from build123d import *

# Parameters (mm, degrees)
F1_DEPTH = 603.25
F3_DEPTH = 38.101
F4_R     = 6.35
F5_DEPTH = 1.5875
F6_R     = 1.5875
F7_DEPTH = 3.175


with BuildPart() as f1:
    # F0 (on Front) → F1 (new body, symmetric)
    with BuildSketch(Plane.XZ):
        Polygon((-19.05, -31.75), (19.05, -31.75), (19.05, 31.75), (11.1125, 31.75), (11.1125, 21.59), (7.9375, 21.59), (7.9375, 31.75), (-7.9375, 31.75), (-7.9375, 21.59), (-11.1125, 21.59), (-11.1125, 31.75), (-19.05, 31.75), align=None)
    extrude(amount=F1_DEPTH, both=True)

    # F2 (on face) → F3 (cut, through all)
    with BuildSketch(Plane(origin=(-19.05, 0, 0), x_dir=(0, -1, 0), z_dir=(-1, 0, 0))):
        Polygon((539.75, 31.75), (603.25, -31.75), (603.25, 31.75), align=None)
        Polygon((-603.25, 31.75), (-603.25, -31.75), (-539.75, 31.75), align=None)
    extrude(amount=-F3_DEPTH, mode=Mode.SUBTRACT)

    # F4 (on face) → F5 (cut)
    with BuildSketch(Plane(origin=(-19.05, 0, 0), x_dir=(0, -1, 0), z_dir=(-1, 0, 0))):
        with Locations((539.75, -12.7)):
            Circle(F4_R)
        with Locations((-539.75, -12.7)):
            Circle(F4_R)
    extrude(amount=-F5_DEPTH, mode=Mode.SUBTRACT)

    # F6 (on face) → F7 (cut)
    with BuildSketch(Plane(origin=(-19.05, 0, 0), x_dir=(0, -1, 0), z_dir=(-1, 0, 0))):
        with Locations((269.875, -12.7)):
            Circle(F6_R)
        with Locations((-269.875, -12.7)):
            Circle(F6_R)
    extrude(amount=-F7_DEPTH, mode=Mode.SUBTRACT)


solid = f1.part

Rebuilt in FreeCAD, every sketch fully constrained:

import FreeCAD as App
import Part
import Sketcher

V = App.Vector
Q = App.Units.Quantity

doc = App.newDocument("Part")
body = doc.addObject("PartDesign::Body", "Body")

# Sketch on XZ plane
sketch1 = body.newObject("Sketcher::SketchObject", "Sketch")
sketch1.AttachmentSupport = (doc.getObject("XZ_Plane"), [""])
sketch1.MapMode = "FlatFace"
sketch1.addGeometry([
    Part.LineSegment(V(-19.1, -31.8, 0), V(19.1, -31.8, 0)),  # 0
    Part.LineSegment(V(19.1, -31.8, 0), V(19.1, 31.8, 0)),  # 1
    Part.LineSegment(V(19.1, 31.8, 0), V(11.1, 31.8, 0)),  # 2
    Part.LineSegment(V(11.1, 31.8, 0), V(11.1, 21.6, 0)),  # 3
    Part.LineSegment(V(11.1, 21.6, 0), V(7.9, 21.6, 0)),  # 4
    Part.LineSegment(V(7.9, 21.6, 0), V(7.9, 31.8, 0)),  # 5
    Part.LineSegment(V(7.9, 31.8, 0), V(-7.9, 31.8, 0)),  # 6
    Part.LineSegment(V(-7.9, 31.8, 0), V(-7.9, 21.6, 0)),  # 7
    Part.LineSegment(V(-7.9, 21.6, 0), V(-11.1, 21.6, 0)),  # 8
    Part.LineSegment(V(-11.1, 21.6, 0), V(-11.1, 31.8, 0)),  # 9
    Part.LineSegment(V(-11.1, 31.8, 0), V(-19.1, 31.8, 0)),  # 10
    Part.LineSegment(V(-19.1, 31.8, 0), V(-19.1, -31.8, 0)),  # 11
], False)
sketch1.addConstraint([
    Sketcher.Constraint("Coincident", 0, 2, 1, 1),
    Sketcher.Constraint("Coincident", 1, 2, 2, 1),
    Sketcher.Constraint("Coincident", 2, 2, 3, 1),
    Sketcher.Constraint("Coincident", 3, 2, 4, 1),
    Sketcher.Constraint("Coincident", 4, 2, 5, 1),
    Sketcher.Constraint("Coincident", 5, 2, 6, 1),
    Sketcher.Constraint("Coincident", 6, 2, 7, 1),
    Sketcher.Constraint("Coincident", 7, 2, 8, 1),
    Sketcher.Constraint("Coincident", 8, 2, 9, 1),
    Sketcher.Constraint("Coincident", 9, 2, 10, 1),
    Sketcher.Constraint("Coincident", 10, 2, 11, 1),
    Sketcher.Constraint("Coincident", 11, 2, 0, 1),
    Sketcher.Constraint("Horizontal", 0),
    Sketcher.Constraint("Vertical", 1),
    Sketcher.Constraint("Horizontal", 2),
    Sketcher.Constraint("Vertical", 3),
    Sketcher.Constraint("Horizontal", 4),
    Sketcher.Constraint("Vertical", 5),
    Sketcher.Constraint("Horizontal", 6),
    Sketcher.Constraint("Vertical", 7),
    Sketcher.Constraint("Horizontal", 8),
    Sketcher.Constraint("Vertical", 9),
    Sketcher.Constraint("Horizontal", 10),
    Sketcher.Constraint("Vertical", 11),
    Sketcher.Constraint("Symmetric", 0, 2, 10, 2, -1, 1),
    Sketcher.Constraint("Symmetric", 4, 2, 7, 2, -2),
    Sketcher.Constraint("Symmetric", 2, 2, 9, 2, -2),
    Sketcher.Constraint("Horizontal", 2, 2, 5, 2),
    Sketcher.Constraint("DistanceX", 0, 1, 0, 2, Q("1.5 in")),
    Sketcher.Constraint("DistanceY", 1, 1, 1, 2, Q("2.5 in")),
    Sketcher.Constraint("DistanceY", 3, 2, 3, 1, Q("0.4 in")),
    Sketcher.Constraint("DistanceX", 2, 2, 2, 1, Q("0.3125 in")),
    Sketcher.Constraint("DistanceX", 4, 2, 4, 1, Q("0.125 in")),
])
pad1 = body.newObject("PartDesign::Pad", "Pad")
pad1.Profile = sketch1
pad1.Length = Q("47.5 in")
pad1.Midplane = True

# Sketch on YZ plane
sketch2 = body.newObject("Sketcher::SketchObject", "Sketch001")
sketch2.AttachmentSupport = (doc.getObject("YZ_Plane"), [""])
sketch2.MapMode = "FlatFace"
sketch2.AttachmentOffset = App.Placement(V(0, 0, -0.75 * 25.4), App.Rotation())
sketch2.addGeometry([
    Part.LineSegment(V(-540, 32, 0), V(-603, -32, 0)),  # 0
    Part.LineSegment(V(-603, -32, 0), V(-603, 32, 0)),  # 1
    Part.LineSegment(V(-603, 32, 0), V(-540, 32, 0)),  # 2
    Part.LineSegment(V(603, 32, 0), V(603, -32, 0)),  # 3
    Part.LineSegment(V(603, -32, 0), V(540, 32, 0)),  # 4
    Part.LineSegment(V(540, 32, 0), V(603, 32, 0)),  # 5
], False)
sketch2.addConstraint([
    Sketcher.Constraint("Coincident", 0, 2, 1, 1),
    Sketcher.Constraint("Coincident", 1, 2, 2, 1),
    Sketcher.Constraint("Coincident", 2, 2, 0, 1),
    Sketcher.Constraint("Coincident", 3, 2, 4, 1),
    Sketcher.Constraint("Coincident", 4, 2, 5, 1),
    Sketcher.Constraint("Coincident", 5, 2, 3, 1),
    Sketcher.Constraint("Vertical", 1),
    Sketcher.Constraint("Horizontal", 2),
    Sketcher.Constraint("Vertical", 3),
    Sketcher.Constraint("Horizontal", 5),
    Sketcher.Constraint("Symmetric", 1, 2, 3, 2, -1, 1),
    Sketcher.Constraint("Symmetric", 2, 2, 4, 2, -2),
    Sketcher.Constraint("Perpendicular", 0, 4),
    Sketcher.Constraint("Horizontal", 0, 2, 3, 2),
    Sketcher.Constraint("DistanceX", 2, 1, 2, 2, Q("2.5 in")),
    Sketcher.Constraint("DistanceX", 2, 2, 3, 2, Q("45 in")),
])
pocket1 = body.newObject("PartDesign::Pocket", "Pocket")
pocket1.Profile = sketch2
pocket1.Type = "ThroughAll"
pocket1.Reversed = True

# Sketch on YZ plane
sketch3 = body.newObject("Sketcher::SketchObject", "Sketch002")
sketch3.AttachmentSupport = (doc.getObject("YZ_Plane"), [""])
sketch3.MapMode = "FlatFace"
sketch3.AttachmentOffset = App.Placement(V(0, 0, -0.75 * 25.4), App.Rotation())
sketch3.addGeometry([
    Part.Circle(V(-540, -13, 0), V(0, 0, 1), 6),
    Part.Circle(V(540, -13, 0), V(0, 0, 1), 6),
], False)
sketch3.addConstraint([
    Sketcher.Constraint("Equal", 0, 1),
    Sketcher.Constraint("Symmetric", 0, 3, 1, 3, -2),
    Sketcher.Constraint("Diameter", 0, Q("0.5 in")),
    Sketcher.Constraint("DistanceY", 0, 3, -1, 1, Q("0.5 in")),
    Sketcher.Constraint("DistanceX", 0, 3, 1, 3, Q("42.5 in")),
])
pocket2 = body.newObject("PartDesign::Pocket", "Pocket001")
pocket2.Profile = sketch3
pocket2.Length = Q("0.0625 in")
pocket2.Reversed = True

# Sketch on YZ plane
sketch4 = body.newObject("Sketcher::SketchObject", "Sketch003")
sketch4.AttachmentSupport = (doc.getObject("YZ_Plane"), [""])
sketch4.MapMode = "FlatFace"
sketch4.AttachmentOffset = App.Placement(V(0, 0, -0.75 * 25.4), App.Rotation())
sketch4.addGeometry([
    Part.Circle(V(-269.9, -12.7, 0), V(0, 0, 1), 1.6),
    Part.Circle(V(269.9, -12.7, 0), V(0, 0, 1), 1.6),
], False)
sketch4.addConstraint([
    Sketcher.Constraint("Equal", 0, 1),
    Sketcher.Constraint("Symmetric", 0, 3, 1, 3, -2),
    Sketcher.Constraint("Diameter", 0, Q("0.125 in")),
    Sketcher.Constraint("DistanceY", 0, 3, -1, 1, Q("0.5 in")),
    Sketcher.Constraint("DistanceX", 0, 3, 1, 3, Q("21.25 in")),
])
pocket3 = body.newObject("PartDesign::Pocket", "Pocket002")
pocket3.Profile = sketch4
pocket3.Length = Q("0.125 in")
pocket3.Reversed = True

doc.recompute()
